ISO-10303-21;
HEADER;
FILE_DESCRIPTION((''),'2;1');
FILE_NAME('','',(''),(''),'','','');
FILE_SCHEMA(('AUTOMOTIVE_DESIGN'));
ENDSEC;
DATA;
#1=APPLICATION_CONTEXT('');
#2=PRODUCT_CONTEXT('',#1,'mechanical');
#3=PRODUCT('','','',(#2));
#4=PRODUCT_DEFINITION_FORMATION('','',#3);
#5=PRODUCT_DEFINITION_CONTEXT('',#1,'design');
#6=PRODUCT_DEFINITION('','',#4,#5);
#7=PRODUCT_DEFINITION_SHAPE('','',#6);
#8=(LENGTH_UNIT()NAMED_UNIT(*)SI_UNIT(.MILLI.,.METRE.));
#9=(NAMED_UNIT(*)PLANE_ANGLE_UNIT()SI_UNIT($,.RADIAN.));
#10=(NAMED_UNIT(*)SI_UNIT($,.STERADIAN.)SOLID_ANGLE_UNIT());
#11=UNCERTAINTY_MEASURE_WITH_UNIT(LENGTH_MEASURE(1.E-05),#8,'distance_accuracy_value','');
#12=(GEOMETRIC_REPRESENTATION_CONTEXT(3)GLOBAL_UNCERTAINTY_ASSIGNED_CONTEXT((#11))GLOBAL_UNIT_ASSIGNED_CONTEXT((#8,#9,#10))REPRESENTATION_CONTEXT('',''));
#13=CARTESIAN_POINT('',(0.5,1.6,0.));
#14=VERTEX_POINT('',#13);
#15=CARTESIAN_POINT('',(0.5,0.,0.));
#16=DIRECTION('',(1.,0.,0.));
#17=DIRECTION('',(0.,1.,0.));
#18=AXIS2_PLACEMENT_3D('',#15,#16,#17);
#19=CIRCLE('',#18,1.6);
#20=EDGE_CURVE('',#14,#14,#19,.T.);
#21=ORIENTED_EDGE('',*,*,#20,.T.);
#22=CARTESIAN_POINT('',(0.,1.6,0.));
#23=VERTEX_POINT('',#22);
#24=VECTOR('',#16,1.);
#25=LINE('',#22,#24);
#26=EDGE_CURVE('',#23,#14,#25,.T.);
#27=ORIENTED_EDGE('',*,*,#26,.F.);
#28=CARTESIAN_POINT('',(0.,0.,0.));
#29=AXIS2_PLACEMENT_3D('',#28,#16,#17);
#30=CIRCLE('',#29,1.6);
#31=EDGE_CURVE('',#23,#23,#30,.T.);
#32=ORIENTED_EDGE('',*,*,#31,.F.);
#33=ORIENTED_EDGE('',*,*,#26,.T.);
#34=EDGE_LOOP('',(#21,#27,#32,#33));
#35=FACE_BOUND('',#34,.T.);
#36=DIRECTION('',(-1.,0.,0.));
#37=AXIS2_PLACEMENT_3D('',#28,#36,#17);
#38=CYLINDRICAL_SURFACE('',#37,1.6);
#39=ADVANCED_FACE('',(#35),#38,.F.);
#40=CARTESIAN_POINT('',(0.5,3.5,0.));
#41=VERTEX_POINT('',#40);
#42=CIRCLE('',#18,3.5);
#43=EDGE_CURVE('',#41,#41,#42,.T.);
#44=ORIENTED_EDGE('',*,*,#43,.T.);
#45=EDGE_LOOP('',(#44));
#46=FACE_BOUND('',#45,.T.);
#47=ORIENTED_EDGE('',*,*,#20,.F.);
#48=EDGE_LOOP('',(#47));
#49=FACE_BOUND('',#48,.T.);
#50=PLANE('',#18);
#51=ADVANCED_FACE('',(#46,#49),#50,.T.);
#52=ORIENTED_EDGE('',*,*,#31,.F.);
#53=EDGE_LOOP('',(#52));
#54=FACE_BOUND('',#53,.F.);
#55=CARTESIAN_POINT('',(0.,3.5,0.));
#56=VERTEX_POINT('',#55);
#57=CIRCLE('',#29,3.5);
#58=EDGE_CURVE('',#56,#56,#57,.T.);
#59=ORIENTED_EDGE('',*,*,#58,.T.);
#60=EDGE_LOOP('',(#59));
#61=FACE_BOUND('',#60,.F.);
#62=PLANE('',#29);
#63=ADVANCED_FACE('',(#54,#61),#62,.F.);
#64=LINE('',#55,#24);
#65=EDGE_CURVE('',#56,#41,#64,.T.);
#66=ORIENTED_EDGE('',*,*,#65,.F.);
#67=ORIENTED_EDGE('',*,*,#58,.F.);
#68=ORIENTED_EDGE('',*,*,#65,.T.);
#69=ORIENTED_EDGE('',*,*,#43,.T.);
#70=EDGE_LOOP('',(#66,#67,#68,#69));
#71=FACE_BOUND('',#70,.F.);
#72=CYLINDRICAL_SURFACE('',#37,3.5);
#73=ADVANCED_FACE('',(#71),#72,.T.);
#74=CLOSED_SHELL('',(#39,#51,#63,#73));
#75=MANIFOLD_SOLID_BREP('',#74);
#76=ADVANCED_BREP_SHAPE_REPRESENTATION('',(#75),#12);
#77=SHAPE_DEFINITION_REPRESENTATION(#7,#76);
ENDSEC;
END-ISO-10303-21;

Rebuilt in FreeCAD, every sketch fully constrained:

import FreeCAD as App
import Part
import Sketcher
from FreeCAD import Vector

doc = App.newDocument("Part")
body = doc.addObject("PartDesign::Body", "Body")

sketch1 = body.newObject("Sketcher::SketchObject", "Sketch")
sketch1.AttachmentSupport = (doc.getObject("YZ_Plane"), [""])
sketch1.MapMode = "FlatFace"
sketch1.addGeometry([
    Part.Circle(Vector(0, 0, 0), Vector(0, 0, 1), 3.5),
    Part.Circle(Vector(0, 0, 0), Vector(0, 0, 1), 1.6),
], False)
sketch1.addConstraint([
    Sketcher.Constraint("Coincident", 0, 3, -1, 1),
    Sketcher.Constraint("Coincident", 1, 3, -1, 1),
    Sketcher.Constraint("Diameter", 0, 7.0),
    Sketcher.Constraint("Diameter", 1, 3.2),
])
pad1 = body.newObject("PartDesign::Pad", "Pad")
pad1.Profile = sketch1
pad1.Length = 0.5

doc.recompute()
